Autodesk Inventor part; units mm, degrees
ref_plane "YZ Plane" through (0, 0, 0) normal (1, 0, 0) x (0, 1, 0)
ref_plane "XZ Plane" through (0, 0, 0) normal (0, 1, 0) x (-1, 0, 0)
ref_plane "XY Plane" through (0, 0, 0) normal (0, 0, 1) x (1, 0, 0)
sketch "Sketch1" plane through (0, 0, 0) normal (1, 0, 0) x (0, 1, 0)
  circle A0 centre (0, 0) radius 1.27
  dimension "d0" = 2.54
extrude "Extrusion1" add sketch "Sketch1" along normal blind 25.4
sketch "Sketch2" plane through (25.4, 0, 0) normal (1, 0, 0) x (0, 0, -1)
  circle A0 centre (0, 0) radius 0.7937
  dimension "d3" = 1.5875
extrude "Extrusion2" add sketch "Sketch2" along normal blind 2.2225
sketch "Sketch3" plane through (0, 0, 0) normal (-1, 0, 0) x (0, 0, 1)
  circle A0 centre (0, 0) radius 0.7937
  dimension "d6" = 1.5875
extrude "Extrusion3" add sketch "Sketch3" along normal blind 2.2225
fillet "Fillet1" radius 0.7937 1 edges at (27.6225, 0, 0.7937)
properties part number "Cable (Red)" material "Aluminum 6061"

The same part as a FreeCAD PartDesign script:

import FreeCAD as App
import Part
import Sketcher

V = App.Vector
Q = App.Units.Quantity


def edges_at(feature, points):
    """Names of the edges that pass closest to the given points."""
    edges = feature.Shape.Edges
    near = lambda p: min(range(len(edges)), key=lambda i: edges[i].distToShape(Part.Vertex(*p))[0])
    return sorted({f"Edge{near(p) + 1}" for p in points})

doc = App.newDocument("Part")
body = doc.addObject("PartDesign::Body", "Body")

# Sketch on YZ plane
sketch1 = body.newObject("Sketcher::SketchObject", "Sketch")
sketch1.AttachmentSupport = (doc.getObject("YZ_Plane"), [""])
sketch1.MapMode = "FlatFace"
sketch1.addGeometry(Part.Circle(V(0, 0, 0), V(0, 0, 1), 1.27), False)
sketch1.addConstraint([
    Sketcher.Constraint("Coincident", 0, 3, -1, 1),
    Sketcher.Constraint("Diameter", 0, Q("0.1 in")),
])
pad1 = body.newObject("PartDesign::Pad", "Pad")
pad1.Profile = sketch1
pad1.Length = Q("1 in")

# Sketch on YZ plane
sketch2 = body.newObject("Sketcher::SketchObject", "Sketch001")
sketch2.AttachmentSupport = (doc.getObject("YZ_Plane"), [""])
sketch2.MapMode = "FlatFace"
sketch2.AttachmentOffset = App.Placement(V(0, 0, 1 * 25.4), App.Rotation())
sketch2.addGeometry(Part.Circle(V(0, 0, 0), V(0, 0, 1), 0.7937), False)
sketch2.addConstraint([
    Sketcher.Constraint("Coincident", 0, 3, -1, 1),
    Sketcher.Constraint("Diameter", 0, Q("0.0625 in")),
])
pad2 = body.newObject("PartDesign::Pad", "Pad001")
pad2.Profile = sketch2
pad2.Length = Q("0.0875 in")

# Sketch on YZ plane
sketch3 = body.newObject("Sketcher::SketchObject", "Sketch002")
sketch3.AttachmentSupport = (doc.getObject("YZ_Plane"), [""])
sketch3.MapMode = "FlatFace"
sketch3.addGeometry(Part.Circle(V(0, 0, 0), V(0, 0, 1), 0.7937), False)
sketch3.addConstraint([
    Sketcher.Constraint("Coincident", 0, 3, -1, 1),
    Sketcher.Constraint("Diameter", 0, Q("0.0625 in")),
])
pad3 = body.newObject("PartDesign::Pad", "Pad002")
pad3.Profile = sketch3
pad3.Length = Q("0.0875 in")
pad3.Reversed = True
doc.recompute()

fillet = body.newObject("PartDesign::Fillet", "Fillet")
fillet.Base = (pad3, edges_at(pad3, [(27.622, 0, 0.794)]))
fillet.Radius = Q("0.031248 in")

doc.recompute()
